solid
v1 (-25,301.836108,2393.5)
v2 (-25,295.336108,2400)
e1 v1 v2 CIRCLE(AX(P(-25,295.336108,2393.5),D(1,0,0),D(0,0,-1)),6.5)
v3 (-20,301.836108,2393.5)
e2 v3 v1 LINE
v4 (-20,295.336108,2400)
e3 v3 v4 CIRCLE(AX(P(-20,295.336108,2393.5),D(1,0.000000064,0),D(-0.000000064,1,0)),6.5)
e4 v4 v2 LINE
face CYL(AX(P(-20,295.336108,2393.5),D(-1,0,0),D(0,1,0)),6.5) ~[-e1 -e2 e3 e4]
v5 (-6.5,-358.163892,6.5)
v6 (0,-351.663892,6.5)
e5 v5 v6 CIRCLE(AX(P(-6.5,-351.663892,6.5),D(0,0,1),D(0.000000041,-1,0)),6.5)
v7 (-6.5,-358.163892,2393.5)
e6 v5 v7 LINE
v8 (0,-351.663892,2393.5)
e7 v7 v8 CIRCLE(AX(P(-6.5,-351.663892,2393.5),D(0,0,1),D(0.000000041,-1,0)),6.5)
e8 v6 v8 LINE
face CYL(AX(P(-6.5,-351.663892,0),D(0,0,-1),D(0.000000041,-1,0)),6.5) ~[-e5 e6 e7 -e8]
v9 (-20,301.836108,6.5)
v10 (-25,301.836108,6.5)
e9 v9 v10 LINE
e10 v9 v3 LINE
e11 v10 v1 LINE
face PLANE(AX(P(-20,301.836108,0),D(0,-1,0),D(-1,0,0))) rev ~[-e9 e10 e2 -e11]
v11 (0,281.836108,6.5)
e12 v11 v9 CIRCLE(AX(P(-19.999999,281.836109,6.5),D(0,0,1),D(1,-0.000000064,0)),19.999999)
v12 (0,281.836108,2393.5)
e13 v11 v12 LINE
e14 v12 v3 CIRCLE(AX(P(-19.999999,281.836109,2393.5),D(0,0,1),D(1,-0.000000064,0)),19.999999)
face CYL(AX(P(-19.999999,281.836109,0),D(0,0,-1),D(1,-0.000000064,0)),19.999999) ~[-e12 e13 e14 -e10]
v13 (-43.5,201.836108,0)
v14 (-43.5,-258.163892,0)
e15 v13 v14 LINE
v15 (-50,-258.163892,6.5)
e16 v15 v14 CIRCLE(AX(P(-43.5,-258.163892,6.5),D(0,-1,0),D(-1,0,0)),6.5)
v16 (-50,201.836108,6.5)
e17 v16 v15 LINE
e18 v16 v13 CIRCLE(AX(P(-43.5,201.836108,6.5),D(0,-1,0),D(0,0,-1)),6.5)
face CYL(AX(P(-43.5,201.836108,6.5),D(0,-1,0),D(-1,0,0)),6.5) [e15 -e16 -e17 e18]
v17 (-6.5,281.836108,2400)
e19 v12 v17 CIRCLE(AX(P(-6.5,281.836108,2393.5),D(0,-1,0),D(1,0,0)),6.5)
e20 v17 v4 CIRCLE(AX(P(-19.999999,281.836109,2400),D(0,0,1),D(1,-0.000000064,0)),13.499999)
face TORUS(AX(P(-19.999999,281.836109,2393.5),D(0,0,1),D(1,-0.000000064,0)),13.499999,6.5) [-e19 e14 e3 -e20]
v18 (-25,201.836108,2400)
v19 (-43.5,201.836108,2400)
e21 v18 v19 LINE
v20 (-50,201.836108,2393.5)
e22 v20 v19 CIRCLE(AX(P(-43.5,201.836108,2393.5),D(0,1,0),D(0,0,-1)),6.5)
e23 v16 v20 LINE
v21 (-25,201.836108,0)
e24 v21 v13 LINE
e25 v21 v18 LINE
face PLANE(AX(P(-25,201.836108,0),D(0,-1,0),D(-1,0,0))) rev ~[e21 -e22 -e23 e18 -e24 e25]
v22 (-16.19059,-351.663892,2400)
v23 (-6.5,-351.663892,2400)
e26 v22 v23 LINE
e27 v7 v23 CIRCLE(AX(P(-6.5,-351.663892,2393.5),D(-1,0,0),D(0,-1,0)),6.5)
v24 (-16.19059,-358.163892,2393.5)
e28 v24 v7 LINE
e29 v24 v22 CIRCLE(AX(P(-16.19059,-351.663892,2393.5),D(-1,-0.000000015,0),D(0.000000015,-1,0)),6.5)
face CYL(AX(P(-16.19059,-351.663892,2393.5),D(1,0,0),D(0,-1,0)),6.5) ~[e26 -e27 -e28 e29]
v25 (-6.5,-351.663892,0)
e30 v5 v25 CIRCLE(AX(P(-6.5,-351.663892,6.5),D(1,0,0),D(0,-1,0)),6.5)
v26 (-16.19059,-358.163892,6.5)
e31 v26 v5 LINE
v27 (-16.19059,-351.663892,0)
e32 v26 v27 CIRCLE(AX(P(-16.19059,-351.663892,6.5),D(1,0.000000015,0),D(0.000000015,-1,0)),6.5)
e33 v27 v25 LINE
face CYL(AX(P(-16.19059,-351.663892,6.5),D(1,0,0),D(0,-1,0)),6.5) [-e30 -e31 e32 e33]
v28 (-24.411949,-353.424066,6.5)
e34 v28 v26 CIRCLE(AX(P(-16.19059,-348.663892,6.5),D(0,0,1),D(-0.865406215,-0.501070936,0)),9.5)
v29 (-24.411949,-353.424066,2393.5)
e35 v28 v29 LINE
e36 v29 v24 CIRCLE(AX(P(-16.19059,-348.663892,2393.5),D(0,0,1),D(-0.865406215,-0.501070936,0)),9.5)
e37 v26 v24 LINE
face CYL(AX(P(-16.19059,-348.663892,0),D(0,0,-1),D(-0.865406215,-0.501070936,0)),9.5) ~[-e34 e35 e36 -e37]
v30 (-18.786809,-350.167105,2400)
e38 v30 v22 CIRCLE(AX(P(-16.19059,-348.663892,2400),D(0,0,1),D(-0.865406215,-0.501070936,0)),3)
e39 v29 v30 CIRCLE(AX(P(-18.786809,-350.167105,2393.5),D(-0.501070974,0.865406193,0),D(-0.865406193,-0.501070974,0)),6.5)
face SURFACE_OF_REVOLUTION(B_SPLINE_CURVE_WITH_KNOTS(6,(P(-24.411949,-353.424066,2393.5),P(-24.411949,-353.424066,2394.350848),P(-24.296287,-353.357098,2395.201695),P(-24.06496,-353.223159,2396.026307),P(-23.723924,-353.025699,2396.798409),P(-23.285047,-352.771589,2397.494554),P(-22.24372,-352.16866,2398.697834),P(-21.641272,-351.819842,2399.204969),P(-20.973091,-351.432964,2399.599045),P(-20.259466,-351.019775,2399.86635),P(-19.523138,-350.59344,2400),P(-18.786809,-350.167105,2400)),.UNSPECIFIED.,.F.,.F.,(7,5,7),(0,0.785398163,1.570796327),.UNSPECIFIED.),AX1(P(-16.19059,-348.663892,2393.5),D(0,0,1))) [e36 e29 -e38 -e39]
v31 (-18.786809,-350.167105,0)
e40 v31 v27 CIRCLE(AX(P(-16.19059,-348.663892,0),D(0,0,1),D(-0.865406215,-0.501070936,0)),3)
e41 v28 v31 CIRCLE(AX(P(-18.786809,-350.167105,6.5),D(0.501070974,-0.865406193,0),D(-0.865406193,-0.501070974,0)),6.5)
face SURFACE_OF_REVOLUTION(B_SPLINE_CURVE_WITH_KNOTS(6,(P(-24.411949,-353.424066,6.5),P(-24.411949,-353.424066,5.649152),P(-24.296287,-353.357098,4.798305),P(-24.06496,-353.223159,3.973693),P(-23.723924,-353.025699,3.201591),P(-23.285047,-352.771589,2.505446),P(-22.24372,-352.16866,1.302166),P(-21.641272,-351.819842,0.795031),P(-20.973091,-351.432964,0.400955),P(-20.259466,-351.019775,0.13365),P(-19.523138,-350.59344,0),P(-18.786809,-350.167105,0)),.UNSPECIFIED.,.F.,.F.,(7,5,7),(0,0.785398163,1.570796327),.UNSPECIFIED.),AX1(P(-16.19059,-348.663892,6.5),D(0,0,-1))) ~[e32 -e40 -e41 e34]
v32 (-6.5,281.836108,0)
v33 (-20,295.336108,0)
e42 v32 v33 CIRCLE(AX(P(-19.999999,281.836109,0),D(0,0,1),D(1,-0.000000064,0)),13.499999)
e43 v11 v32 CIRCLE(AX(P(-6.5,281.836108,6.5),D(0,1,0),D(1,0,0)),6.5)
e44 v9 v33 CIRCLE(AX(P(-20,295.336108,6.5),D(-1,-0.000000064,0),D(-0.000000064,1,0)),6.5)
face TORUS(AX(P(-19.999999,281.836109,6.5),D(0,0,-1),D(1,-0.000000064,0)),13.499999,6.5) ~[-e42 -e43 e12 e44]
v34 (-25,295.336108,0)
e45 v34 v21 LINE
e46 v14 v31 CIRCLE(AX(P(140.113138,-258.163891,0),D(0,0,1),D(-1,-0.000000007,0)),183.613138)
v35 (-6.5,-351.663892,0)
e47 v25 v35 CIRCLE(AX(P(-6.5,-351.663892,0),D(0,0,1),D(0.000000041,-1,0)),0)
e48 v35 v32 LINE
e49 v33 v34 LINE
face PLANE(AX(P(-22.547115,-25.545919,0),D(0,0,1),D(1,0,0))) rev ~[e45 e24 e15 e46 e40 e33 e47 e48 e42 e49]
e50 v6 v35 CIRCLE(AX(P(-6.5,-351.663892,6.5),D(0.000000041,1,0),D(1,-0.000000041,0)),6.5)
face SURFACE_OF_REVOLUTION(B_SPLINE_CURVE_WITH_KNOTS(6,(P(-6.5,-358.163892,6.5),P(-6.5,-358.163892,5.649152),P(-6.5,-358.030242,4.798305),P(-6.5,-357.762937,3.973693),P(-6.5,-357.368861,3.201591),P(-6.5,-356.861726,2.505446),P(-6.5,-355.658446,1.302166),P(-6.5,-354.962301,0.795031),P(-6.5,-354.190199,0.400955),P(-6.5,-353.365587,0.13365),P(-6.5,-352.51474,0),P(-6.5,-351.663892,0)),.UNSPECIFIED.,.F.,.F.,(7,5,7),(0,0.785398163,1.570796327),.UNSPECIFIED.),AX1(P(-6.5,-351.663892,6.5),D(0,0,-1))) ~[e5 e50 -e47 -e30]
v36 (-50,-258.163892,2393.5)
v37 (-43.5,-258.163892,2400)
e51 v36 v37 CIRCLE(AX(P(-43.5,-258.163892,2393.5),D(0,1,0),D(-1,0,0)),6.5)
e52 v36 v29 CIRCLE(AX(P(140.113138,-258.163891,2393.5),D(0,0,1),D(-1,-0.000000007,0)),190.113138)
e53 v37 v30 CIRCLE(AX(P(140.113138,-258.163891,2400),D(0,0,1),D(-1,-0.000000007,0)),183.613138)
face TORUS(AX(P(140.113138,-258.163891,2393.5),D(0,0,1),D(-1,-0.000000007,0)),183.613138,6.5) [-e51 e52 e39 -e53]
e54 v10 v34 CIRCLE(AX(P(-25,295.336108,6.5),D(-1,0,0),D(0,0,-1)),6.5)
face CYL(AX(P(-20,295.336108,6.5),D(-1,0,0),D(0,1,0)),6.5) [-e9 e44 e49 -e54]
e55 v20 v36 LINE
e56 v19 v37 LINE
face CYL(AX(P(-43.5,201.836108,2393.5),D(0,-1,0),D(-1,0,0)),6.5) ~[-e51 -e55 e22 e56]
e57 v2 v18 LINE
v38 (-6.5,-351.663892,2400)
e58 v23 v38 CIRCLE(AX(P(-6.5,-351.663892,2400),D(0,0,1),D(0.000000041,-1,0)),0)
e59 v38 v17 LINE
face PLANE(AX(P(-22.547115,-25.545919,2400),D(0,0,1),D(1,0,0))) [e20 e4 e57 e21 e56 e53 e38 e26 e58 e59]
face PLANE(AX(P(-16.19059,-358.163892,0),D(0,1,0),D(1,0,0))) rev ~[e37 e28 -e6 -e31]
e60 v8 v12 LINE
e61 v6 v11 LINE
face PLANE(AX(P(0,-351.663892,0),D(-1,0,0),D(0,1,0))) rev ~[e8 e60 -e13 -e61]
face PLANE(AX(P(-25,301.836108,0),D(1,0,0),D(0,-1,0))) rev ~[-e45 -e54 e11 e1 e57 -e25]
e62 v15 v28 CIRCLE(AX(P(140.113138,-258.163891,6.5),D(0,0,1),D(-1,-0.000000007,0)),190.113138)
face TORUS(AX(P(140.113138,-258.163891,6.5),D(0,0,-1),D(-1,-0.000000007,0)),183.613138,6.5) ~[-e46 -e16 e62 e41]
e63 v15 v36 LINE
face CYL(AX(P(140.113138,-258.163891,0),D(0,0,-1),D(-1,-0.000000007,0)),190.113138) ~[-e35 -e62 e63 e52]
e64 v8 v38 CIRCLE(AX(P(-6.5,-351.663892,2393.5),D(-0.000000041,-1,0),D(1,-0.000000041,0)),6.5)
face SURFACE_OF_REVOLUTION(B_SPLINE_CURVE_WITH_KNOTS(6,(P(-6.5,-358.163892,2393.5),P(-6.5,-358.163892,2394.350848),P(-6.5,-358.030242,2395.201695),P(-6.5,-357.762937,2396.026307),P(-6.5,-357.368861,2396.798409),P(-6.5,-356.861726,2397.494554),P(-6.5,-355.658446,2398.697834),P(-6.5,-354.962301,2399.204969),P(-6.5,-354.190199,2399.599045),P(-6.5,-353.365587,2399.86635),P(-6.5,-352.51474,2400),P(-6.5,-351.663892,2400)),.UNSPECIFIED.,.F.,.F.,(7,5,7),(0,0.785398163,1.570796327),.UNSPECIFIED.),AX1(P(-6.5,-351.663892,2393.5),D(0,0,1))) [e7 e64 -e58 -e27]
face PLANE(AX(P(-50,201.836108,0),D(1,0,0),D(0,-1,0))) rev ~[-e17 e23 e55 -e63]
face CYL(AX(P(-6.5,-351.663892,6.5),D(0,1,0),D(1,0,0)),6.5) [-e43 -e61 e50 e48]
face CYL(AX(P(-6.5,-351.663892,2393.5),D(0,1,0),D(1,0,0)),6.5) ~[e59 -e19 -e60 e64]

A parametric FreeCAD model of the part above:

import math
import FreeCAD as App
import Part
import Sketcher


def edges_at(feature, points):
    """Names of the edges that pass closest to the given points."""
    edges = feature.Shape.Edges
    near = lambda p: min(range(len(edges)), key=lambda i: edges[i].distToShape(Part.Vertex(*p))[0])
    return sorted({f"Edge{near(p) + 1}" for p in points})

doc = App.newDocument("Part")
params = doc.addObject("Spreadsheet::Sheet", "Params")
for row, (alias, value) in enumerate([
    ("sketch1_radius", "19.999999 mm"),
    ("sketch1_radius2", "9.5 mm"),
    ("sketch1_radius3", "6.5 mm"),
    ("sketch1_width", "5 mm"),
    ("sketch1_width2", "25 mm"),
    ("pad1_length", "2400 mm"),
    ("fillet_radius", "6.5 mm"),
], start=1):
    params.set(f"A{row}", alias)
    params.set(f"B{row}", "=" + value)
    params.setAlias(f"B{row}", alias)

body = doc.addObject("PartDesign::Body", "Body")

# Sketch on XY plane
sketch1 = body.newObject("Sketcher::SketchObject", "Sketch")
sketch1.AttachmentSupport = (doc.getObject("XY_Plane"), [""])
sketch1.MapMode = "FlatFace"
sketch1.addGeometry([
    Part.LineSegment(App.Vector(-20, 302, 0), App.Vector(-25, 302, 0)),  # 0
    Part.LineSegment(App.Vector(-25, 302, 0), App.Vector(-25, 202, 0)),  # 1
    Part.LineSegment(App.Vector(-25, 202, 0), App.Vector(-50, 202, 0)),  # 2
    Part.LineSegment(App.Vector(-50, 202, 0), App.Vector(-50, -258, 0)),  # 3
    Part.ArcOfCircle(Part.Circle(App.Vector(140, -258, 0), App.Vector(0, 0, 1), 190), math.radians(-180), math.radians(-150)),  # 4
    Part.ArcOfCircle(Part.Circle(App.Vector(-16, -349, 0), App.Vector(0, 0, 1), 9), math.radians(-150), math.radians(-90)),  # 5
    Part.LineSegment(App.Vector(-16, -358, 0), App.Vector(-6, -358, 0)),  # 6
    Part.ArcOfCircle(Part.Circle(App.Vector(-7, -352, 0), App.Vector(0, 0, 1), 7), math.radians(-90), math.radians(0)),  # 7
    Part.LineSegment(App.Vector(0, -352, 0), App.Vector(0, 282, 0)),  # 8
    Part.ArcOfCircle(Part.Circle(App.Vector(-20, 282, 0), App.Vector(0, 0, 1), 20), math.radians(0), math.radians(90)),  # 9
], False)
sketch1.addConstraint([
    Sketcher.Constraint("Coincident", 0, 2, 1, 1),
    Sketcher.Constraint("Coincident", 1, 2, 2, 1),
    Sketcher.Constraint("Coincident", 2, 2, 3, 1),
    Sketcher.Constraint("Tangent", 3, 2, 4, 1),
    Sketcher.Constraint("Tangent", 4, 2, 5, 1),
    Sketcher.Constraint("Tangent", 5, 2, 6, 1),
    Sketcher.Constraint("Tangent", 6, 2, 7, 1),
    Sketcher.Constraint("Tangent", 7, 2, 8, 1),
    Sketcher.Constraint("Tangent", 8, 2, 9, 1),
    Sketcher.Constraint("Tangent", 9, 2, 0, 1),
    Sketcher.Constraint("Horizontal", 0),
    Sketcher.Constraint("Vertical", 1),
    Sketcher.Constraint("Horizontal", 2),
    Sketcher.Constraint("Vertical", 3),
    Sketcher.Constraint("Horizontal", 6),
    Sketcher.Constraint("Vertical", 8),
    Sketcher.Constraint("PointOnObject", 7, 2, -2),
    Sketcher.Constraint("Radius", 9, 19.999999),
    Sketcher.Constraint("Radius", 5, 9.5),
    Sketcher.Constraint("Radius", 7, 6.5),
    Sketcher.Constraint("DistanceX", 0, 2, 0, 1, 5.0),
    Sketcher.Constraint("DistanceX", 2, 2, 2, 1, 25.0),
    Sketcher.Constraint("DistanceY", 1, 2, 1, 1, 100.0),
    Sketcher.Constraint("DistanceY", 3, 2, 3, 1, 460.0),
    Sketcher.Constraint("DistanceY", 8, 1, 8, 2, 633.5),
    Sketcher.Constraint("Radius", 4, 190.113138),
    Sketcher.Constraint("DistanceY", 4, 3, -1, 1, 258.163891),
])
sketch1.setExpression("Constraints[17]", "Params.sketch1_radius")
sketch1.setExpression("Constraints[18]", "Params.sketch1_radius2")
sketch1.setExpression("Constraints[19]", "Params.sketch1_radius3")
sketch1.setExpression("Constraints[20]", "Params.sketch1_width")
sketch1.setExpression("Constraints[21]", "Params.sketch1_width2")
pad1 = body.newObject("PartDesign::Pad", "Pad")
pad1.Profile = sketch1
pad1.setExpression("Length", "Params.pad1_length")
doc.recompute()

fillet = body.newObject("PartDesign::Fillet", "Fillet")
fillet.Base = (pad1, edges_at(pad1, [(-50, -28.164, 2400), (-50, -28.164, 0)]))
fillet.setExpression("Radius", "Params.fillet_radius")

doc.recompute()
